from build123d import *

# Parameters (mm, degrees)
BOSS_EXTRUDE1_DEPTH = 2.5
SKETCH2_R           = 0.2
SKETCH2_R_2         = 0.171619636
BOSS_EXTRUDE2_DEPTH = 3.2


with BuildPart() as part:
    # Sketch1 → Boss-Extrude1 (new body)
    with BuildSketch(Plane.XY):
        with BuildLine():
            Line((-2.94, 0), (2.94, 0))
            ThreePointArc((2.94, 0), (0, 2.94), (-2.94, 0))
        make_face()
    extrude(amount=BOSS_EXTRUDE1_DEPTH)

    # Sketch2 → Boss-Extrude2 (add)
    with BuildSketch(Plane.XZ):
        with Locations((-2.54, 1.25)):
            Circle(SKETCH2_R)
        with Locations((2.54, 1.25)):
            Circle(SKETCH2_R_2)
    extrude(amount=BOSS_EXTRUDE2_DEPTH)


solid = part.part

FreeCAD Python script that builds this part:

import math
import FreeCAD as App
import Part
import Sketcher

doc = App.newDocument("Part")
body = doc.addObject("PartDesign::Body", "Body")

# Sketch on XY plane
sketch1 = body.newObject("Sketcher::SketchObject", "Sketch")
sketch1.AttachmentSupport = (doc.getObject("XY_Plane"), [""])
sketch1.MapMode = "FlatFace"
sketch1.addGeometry([
    Part.LineSegment(App.Vector(-2.9, 0, 0), App.Vector(2.9, 0, 0)),
    Part.ArcOfCircle(Part.Circle(App.Vector(0, 0, 0), App.Vector(0, 0, 1), 2.9), math.radians(0), math.radians(180)),
], False)
sketch1.addConstraint([
    Sketcher.Constraint("Coincident", 0, 1, 1, 2),
    Sketcher.Constraint("Coincident", 1, 1, 0, 2),
    Sketcher.Constraint("Horizontal", 0),
    Sketcher.Constraint("Coincident", 1, 3, -1, 1),
    Sketcher.Constraint("PointOnObject", 0, 1, -1),
    Sketcher.Constraint("Radius", 1, 2.94),
])
pad1 = body.newObject("PartDesign::Pad", "Pad")
pad1.Profile = sketch1
pad1.Length = 2.5

# Sketch on XZ plane
sketch2 = body.newObject("Sketcher::SketchObject", "Sketch001")
sketch2.AttachmentSupport = (doc.getObject("XZ_Plane"), [""])
sketch2.MapMode = "FlatFace"
sketch2.addGeometry([
    Part.Circle(App.Vector(-2.54, 1.25, 0), App.Vector(0, 0, 1), 0.2),
    Part.Circle(App.Vector(2.54, 1.25, 0), App.Vector(0, 0, 1), 0.17),
], False)
sketch2.addConstraint([
    Sketcher.Constraint("Symmetric", 0, 3, 1, 3, -2),
    Sketcher.Constraint("Diameter", 0, 0.4),
    Sketcher.Constraint("Diameter", 1, 0.343239),
    Sketcher.Constraint("DistanceX", 0, 3, -1, 1, 2.54),
    Sketcher.Constraint("DistanceY", -1, 1, 0, 3, 1.25),
])
pad2 = body.newObject("PartDesign::Pad", "Pad001")
pad2.Profile = sketch2
pad2.Length = 3.2

doc.recompute()
